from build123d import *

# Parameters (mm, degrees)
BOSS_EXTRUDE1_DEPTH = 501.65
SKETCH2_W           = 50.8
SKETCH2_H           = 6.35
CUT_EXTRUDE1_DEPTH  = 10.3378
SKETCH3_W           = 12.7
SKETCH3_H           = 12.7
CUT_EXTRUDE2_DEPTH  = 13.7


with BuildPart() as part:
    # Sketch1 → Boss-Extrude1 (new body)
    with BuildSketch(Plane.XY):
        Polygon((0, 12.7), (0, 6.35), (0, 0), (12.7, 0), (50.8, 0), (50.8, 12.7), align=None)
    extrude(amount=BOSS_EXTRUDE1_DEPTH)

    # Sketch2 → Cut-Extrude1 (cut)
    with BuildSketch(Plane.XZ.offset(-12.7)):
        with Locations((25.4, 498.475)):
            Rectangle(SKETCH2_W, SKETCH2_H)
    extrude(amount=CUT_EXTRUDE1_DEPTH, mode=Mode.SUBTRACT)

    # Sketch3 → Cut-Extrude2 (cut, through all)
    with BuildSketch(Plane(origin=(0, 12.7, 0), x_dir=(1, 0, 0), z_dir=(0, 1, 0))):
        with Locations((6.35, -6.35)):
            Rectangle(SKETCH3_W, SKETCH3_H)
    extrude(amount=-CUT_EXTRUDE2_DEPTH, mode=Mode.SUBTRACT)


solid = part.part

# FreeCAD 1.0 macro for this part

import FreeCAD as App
import Part
import Sketcher
from FreeCAD import Vector
Q = App.Units.Quantity


def add_polygon(sketch, points):
    """Adds a closed chain of lines whose ends are joined by coincident constraints."""
    first, n = sketch.GeometryCount, len(points)
    for a, b in zip(points, points[1:] + points[:1]):
        sketch.addGeometry(Part.LineSegment(App.Vector(*a, 0), App.Vector(*b, 0)), False)
    for i in range(n):
        sketch.addConstraint(Sketcher.Constraint("Coincident", first + i, 2, first + (i + 1) % n, 1))

doc = App.newDocument("Part")
params = doc.addObject("Spreadsheet::Sheet", "Params")
for row, (alias, value) in enumerate([
    ("sketch1_width", "2 in"),
    ("sketch1_height", "0.5 in"),
    ("pad1_length", "19.75 in"),
    ("sketch2_width", "2 in"),
    ("sketch2_height", "0.25 in"),
    ("pocket1_length", "0.407 in"),
    ("sketch3_width", "0.5 in"),
], start=1):
    params.set(f"A{row}", alias)
    params.set(f"B{row}", "=" + value)
    params.setAlias(f"B{row}", alias)

body = doc.addObject("PartDesign::Body", "Body")

# Sketch on XY plane
sketch1 = body.newObject("Sketcher::SketchObject", "Sketch")
sketch1.AttachmentSupport = (doc.getObject("XY_Plane"), [""])
sketch1.MapMode = "FlatFace"
add_polygon(sketch1, [(0, 13), (0, 0), (51, 0), (51, 13)])  # lines 0-3
sketch1.addConstraint(Sketcher.Constraint("Vertical", 0))
sketch1.addConstraint(Sketcher.Constraint("Horizontal", 1))
sketch1.addConstraint(Sketcher.Constraint("Vertical", 2))
sketch1.addConstraint(Sketcher.Constraint("Horizontal", 3))
sketch1.addConstraint(Sketcher.Constraint("Coincident", 0, 2, -1, 1))
sketch1.addConstraint(Sketcher.Constraint("DistanceX", 1, 1, 1, 2, Q("2 in")))
sketch1.addConstraint(Sketcher.Constraint("DistanceY", 0, 2, 0, 1, Q("0.5 in")))
sketch1.setExpression("Constraints[9]", "Params.sketch1_width")
sketch1.setExpression("Constraints[10]", "Params.sketch1_height")
pad1 = body.newObject("PartDesign::Pad", "Pad")
pad1.Profile = sketch1
pad1.setExpression("Length", "Params.pad1_length")

# Sketch on XZ plane
sketch2 = body.newObject("Sketcher::SketchObject", "Sketch001")
sketch2.AttachmentSupport = (doc.getObject("XZ_Plane"), [""])
sketch2.MapMode = "FlatFace"
sketch2.AttachmentOffset = App.Placement(Vector(0, 0, -0.5 * 25.4), App.Rotation())
add_polygon(sketch2, [(0, 502), (0, 495), (51, 495), (51, 502)])  # lines 0-3
sketch2.addConstraint(Sketcher.Constraint("Vertical", 0))
sketch2.addConstraint(Sketcher.Constraint("Horizontal", 1))
sketch2.addConstraint(Sketcher.Constraint("Vertical", 2))
sketch2.addConstraint(Sketcher.Constraint("Horizontal", 3))
sketch2.addConstraint(Sketcher.Constraint("PointOnObject", 0, 2, -2))
sketch2.addConstraint(Sketcher.Constraint("DistanceX", 1, 1, 1, 2, Q("2 in")))
sketch2.addConstraint(Sketcher.Constraint("DistanceY", 0, 2, 0, 1, Q("0.25 in")))
sketch2.addConstraint(Sketcher.Constraint("DistanceY", -1, 1, 0, 2, Q("19.5 in")))
sketch2.setExpression("Constraints[9]", "Params.sketch2_width")
sketch2.setExpression("Constraints[10]", "Params.sketch2_height")
pocket1 = body.newObject("PartDesign::Pocket", "Pocket")
pocket1.Profile = sketch2
pocket1.setExpression("Length", "Params.pocket1_length")
pocket1.Reversed = True

# Sketch on XZ plane
sketch3 = body.newObject("Sketcher::SketchObject", "Sketch002")
sketch3.AttachmentSupport = (doc.getObject("XZ_Plane"), [""])
sketch3.MapMode = "FlatFace"
sketch3.AttachmentOffset = App.Placement(Vector(0, 0, -0.5 * 25.4), App.Rotation())
add_polygon(sketch3, [(0, 0), (0, 13), (13, 13), (13, 0)])  # lines 0-3
sketch3.addConstraint(Sketcher.Constraint("Vertical", 0))
sketch3.addConstraint(Sketcher.Constraint("Horizontal", 1))
sketch3.addConstraint(Sketcher.Constraint("Vertical", 2))
sketch3.addConstraint(Sketcher.Constraint("Horizontal", 3))
sketch3.addConstraint(Sketcher.Constraint("Coincident", 3, 2, -1, 1))
sketch3.addConstraint(Sketcher.Constraint("Equal", 3, 0))
sketch3.addConstraint(Sketcher.Constraint("DistanceX", 1, 1, 1, 2, Q("0.5 in")))
sketch3.setExpression("Constraints[10]", "Params.sketch3_width")
pocket2 = body.newObject("PartDesign::Pocket", "Pocket001")
pocket2.Profile = sketch3
pocket2.Type = "ThroughAll"
pocket2.Reversed = True

doc.recompute()
